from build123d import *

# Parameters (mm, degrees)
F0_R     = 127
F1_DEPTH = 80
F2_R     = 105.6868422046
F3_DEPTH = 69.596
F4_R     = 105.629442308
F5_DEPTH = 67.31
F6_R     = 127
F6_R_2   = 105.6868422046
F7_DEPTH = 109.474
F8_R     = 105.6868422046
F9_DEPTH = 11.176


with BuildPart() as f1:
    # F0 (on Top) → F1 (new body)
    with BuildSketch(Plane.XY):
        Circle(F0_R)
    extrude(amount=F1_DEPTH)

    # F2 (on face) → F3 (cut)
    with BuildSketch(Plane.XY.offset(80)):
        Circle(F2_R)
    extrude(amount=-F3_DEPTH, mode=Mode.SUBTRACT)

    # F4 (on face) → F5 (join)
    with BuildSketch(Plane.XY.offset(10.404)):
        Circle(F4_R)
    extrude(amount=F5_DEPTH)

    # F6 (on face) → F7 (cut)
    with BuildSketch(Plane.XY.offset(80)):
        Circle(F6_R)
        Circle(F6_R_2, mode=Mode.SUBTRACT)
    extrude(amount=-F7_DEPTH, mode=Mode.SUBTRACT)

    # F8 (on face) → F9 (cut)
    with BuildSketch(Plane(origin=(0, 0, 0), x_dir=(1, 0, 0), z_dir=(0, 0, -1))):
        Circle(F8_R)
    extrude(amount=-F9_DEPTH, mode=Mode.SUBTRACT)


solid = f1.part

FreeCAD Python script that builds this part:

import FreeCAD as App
import Part
import Sketcher
Q = App.Units.Quantity

doc = App.newDocument("Part")
body = doc.addObject("PartDesign::Body", "Body")

# Sketch on XY plane
sketch1 = body.newObject("Sketcher::SketchObject", "Sketch")
sketch1.AttachmentSupport = (doc.getObject("XY_Plane"), [""])
sketch1.MapMode = "FlatFace"
sketch1.addGeometry(Part.Circle(App.Vector(0, 0, 0), App.Vector(0, 0, 1), 127), False)
sketch1.addConstraint(Sketcher.Constraint("Coincident", 0, 3, -1, 1))
sketch1.addConstraint(Sketcher.Constraint("Diameter", 0, Q("10 in")))
pad1 = body.newObject("PartDesign::Pad", "Pad")
pad1.Profile = sketch1
pad1.Length = 80

# Sketch on XY plane
sketch2 = body.newObject("Sketcher::SketchObject", "Sketch001")
sketch2.AttachmentSupport = (doc.getObject("XY_Plane"), [""])
sketch2.MapMode = "FlatFace"
sketch2.AttachmentOffset = App.Placement(App.Vector(0, 0, 80), App.Rotation())
sketch2.addGeometry(Part.Circle(App.Vector(0, 0, 0), App.Vector(0, 0, 1), 105.686842), False)
sketch2.addConstraint(Sketcher.Constraint("Coincident", 0, 3, -1, 1))
sketch2.addConstraint(Sketcher.Constraint("Diameter", 0, 211.373684))
pocket1 = body.newObject("PartDesign::Pocket", "Pocket")
pocket1.Profile = sketch2
pocket1.Length = Q("2.74 in")

# Sketch on XY plane
sketch3 = body.newObject("Sketcher::SketchObject", "Sketch002")
sketch3.AttachmentSupport = (doc.getObject("XY_Plane"), [""])
sketch3.MapMode = "FlatFace"
sketch3.AttachmentOffset = App.Placement(App.Vector(0, 0, 10.404), App.Rotation())
sketch3.addGeometry(Part.Circle(App.Vector(0, 0, 0), App.Vector(0, 0, 1), 105.629442), False)
sketch3.addConstraint(Sketcher.Constraint("Coincident", 0, 3, -1, 1))
sketch3.addConstraint(Sketcher.Constraint("Diameter", 0, 211.258885))
pad2 = body.newObject("PartDesign::Pad", "Pad001")
pad2.Profile = sketch3
pad2.Length = Q("2.65 in")

# Sketch on XY plane
sketch4 = body.newObject("Sketcher::SketchObject", "Sketch003")
sketch4.AttachmentSupport = (doc.getObject("XY_Plane"), [""])
sketch4.MapMode = "FlatFace"
sketch4.AttachmentOffset = App.Placement(App.Vector(0, 0, 80), App.Rotation())
sketch4.addGeometry(Part.Circle(App.Vector(0, 0, 0), App.Vector(0, 0, 1), 127), False)
sketch4.addGeometry(Part.Circle(App.Vector(0, 0, 0), App.Vector(0, 0, 1), 105.686842), False)
sketch4.addConstraint(Sketcher.Constraint("Coincident", 0, 3, -1, 1))
sketch4.addConstraint(Sketcher.Constraint("Coincident", 1, 3, -1, 1))
sketch4.addConstraint(Sketcher.Constraint("Diameter", 0, Q("10 in")))
sketch4.addConstraint(Sketcher.Constraint("Diameter", 1, 211.373684))
pocket2 = body.newObject("PartDesign::Pocket", "Pocket001")
pocket2.Profile = sketch4
pocket2.Length = Q("4.31 in")

# Sketch on XY plane
sketch5 = body.newObject("Sketcher::SketchObject", "Sketch004")
sketch5.AttachmentSupport = (doc.getObject("XY_Plane"), [""])
sketch5.MapMode = "FlatFace"
sketch5.addGeometry(Part.Circle(App.Vector(0, 0, 0), App.Vector(0, 0, 1), 105.686842), False)
sketch5.addConstraint(Sketcher.Constraint("Coincident", 0, 3, -1, 1))
sketch5.addConstraint(Sketcher.Constraint("Diameter", 0, 211.373684))
pocket3 = body.newObject("PartDesign::Pocket", "Pocket002")
pocket3.Profile = sketch5
pocket3.Length = Q("0.44 in")
pocket3.Reversed = True

doc.recompute()
